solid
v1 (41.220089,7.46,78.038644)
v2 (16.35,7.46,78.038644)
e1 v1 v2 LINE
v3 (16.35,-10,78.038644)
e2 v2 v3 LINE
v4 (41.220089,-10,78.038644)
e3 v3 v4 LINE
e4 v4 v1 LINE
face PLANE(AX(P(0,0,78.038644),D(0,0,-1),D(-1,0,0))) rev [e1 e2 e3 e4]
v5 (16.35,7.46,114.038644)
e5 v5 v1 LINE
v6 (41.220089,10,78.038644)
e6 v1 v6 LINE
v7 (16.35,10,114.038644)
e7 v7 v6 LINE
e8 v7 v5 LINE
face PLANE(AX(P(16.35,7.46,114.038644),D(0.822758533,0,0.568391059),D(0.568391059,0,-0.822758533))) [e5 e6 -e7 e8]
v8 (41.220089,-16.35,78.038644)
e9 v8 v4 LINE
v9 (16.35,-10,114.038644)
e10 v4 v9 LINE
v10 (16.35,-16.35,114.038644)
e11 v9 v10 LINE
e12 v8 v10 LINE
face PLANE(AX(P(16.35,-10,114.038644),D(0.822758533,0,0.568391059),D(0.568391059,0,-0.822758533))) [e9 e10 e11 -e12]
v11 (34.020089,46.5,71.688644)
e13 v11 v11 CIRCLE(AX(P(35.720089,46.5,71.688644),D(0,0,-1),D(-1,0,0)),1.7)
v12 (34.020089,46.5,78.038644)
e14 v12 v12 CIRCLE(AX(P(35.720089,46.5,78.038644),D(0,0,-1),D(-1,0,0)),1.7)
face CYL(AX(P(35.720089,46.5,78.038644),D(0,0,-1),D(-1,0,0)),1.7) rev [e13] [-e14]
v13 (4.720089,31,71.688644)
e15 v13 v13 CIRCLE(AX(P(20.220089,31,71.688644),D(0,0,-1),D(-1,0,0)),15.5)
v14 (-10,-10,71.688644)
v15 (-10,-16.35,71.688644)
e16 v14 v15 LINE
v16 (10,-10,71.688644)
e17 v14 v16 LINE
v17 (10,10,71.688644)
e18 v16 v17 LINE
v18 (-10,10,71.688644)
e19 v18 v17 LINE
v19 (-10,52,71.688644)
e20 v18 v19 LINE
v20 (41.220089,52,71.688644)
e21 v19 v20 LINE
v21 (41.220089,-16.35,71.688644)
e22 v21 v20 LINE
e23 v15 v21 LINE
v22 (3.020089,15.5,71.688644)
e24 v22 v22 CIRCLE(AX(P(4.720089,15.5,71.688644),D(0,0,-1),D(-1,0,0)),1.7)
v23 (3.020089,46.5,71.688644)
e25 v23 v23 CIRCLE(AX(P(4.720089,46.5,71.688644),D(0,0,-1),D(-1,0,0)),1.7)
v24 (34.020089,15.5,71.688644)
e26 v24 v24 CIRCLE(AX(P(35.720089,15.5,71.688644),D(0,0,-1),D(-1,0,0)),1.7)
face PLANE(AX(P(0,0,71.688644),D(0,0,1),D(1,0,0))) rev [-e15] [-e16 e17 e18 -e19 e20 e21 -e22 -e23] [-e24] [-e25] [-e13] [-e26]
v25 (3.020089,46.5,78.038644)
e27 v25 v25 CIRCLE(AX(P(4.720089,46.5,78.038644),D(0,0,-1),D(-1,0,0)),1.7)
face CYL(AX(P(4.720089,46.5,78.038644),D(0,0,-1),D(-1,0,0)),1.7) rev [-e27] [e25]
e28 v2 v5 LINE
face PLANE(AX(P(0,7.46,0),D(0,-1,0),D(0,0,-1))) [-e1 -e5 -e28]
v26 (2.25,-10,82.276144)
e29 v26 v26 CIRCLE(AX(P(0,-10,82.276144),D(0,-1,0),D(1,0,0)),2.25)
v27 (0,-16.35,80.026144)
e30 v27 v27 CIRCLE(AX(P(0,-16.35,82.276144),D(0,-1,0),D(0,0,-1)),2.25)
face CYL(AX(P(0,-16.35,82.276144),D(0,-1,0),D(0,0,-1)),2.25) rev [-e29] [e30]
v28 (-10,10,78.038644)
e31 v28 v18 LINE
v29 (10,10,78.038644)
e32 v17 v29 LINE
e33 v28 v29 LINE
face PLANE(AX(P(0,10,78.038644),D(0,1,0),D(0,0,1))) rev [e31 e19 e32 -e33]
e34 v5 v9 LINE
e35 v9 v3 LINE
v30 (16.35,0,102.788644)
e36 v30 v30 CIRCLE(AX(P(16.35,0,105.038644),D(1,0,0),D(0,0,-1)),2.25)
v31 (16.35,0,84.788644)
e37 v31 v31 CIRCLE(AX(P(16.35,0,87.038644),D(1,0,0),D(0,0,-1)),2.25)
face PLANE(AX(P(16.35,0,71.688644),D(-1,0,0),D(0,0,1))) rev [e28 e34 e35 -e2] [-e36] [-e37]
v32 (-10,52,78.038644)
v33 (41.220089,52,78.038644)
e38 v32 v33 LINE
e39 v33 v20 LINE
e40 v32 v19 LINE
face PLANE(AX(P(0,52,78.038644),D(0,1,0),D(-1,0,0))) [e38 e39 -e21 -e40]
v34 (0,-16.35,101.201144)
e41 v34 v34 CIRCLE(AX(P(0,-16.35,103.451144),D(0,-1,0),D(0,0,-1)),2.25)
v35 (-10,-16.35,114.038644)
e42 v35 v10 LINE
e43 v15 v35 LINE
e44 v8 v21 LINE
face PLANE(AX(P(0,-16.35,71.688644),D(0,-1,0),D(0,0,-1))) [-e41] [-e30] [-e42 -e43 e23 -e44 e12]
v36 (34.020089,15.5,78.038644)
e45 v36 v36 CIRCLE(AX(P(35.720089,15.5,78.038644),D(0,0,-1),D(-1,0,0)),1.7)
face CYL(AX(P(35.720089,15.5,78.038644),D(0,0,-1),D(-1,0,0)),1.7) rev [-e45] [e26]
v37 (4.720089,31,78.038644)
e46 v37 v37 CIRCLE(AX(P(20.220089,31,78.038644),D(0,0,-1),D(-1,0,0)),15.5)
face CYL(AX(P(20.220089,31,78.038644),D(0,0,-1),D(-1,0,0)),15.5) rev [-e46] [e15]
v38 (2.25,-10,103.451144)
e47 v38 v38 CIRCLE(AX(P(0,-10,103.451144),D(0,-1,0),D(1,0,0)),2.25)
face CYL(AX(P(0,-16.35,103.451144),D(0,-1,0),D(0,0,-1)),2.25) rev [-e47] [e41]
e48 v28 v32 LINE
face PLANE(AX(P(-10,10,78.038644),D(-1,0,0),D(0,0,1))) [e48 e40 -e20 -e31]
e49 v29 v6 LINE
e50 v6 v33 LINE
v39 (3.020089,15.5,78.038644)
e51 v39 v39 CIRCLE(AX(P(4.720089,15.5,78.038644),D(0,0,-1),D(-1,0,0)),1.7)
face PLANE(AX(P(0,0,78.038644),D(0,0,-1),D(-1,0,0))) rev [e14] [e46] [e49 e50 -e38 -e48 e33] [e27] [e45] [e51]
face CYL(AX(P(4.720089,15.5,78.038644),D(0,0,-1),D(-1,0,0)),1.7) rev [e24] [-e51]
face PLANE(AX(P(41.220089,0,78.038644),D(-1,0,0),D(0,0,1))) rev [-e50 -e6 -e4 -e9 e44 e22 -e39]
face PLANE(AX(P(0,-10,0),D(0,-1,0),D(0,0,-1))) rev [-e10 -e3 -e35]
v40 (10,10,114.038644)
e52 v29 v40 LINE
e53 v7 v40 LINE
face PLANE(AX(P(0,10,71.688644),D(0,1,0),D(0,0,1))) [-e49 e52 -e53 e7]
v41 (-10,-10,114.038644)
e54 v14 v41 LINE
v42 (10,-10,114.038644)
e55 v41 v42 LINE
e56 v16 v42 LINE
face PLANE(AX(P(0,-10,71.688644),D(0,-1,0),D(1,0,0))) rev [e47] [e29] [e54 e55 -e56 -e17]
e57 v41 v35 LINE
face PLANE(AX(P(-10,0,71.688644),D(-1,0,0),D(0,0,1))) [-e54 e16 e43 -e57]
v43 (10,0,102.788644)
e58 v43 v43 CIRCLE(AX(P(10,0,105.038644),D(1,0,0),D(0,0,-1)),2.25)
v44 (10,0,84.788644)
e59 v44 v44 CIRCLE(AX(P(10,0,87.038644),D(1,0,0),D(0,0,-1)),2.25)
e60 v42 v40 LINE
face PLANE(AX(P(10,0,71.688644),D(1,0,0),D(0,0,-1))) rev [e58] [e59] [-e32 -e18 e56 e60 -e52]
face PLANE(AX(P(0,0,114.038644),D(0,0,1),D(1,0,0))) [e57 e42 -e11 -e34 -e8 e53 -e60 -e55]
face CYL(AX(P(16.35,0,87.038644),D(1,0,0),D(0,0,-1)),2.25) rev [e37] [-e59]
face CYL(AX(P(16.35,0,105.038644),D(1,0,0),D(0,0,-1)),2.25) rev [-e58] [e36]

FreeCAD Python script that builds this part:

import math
import FreeCAD as App
import Part
import Sketcher

V = App.Vector

doc = App.newDocument("Part")
body = doc.addObject("PartDesign::Body", "Body")

# Sketch on XY plane
sketch1 = body.newObject("Sketcher::SketchObject", "Sketch")
sketch1.AttachmentSupport = (doc.getObject("XY_Plane"), [""])
sketch1.MapMode = "FlatFace"
sketch1.AttachmentOffset = App.Placement(V(0, 0, 114.038644), App.Rotation())
sketch1.addGeometry([
    Part.LineSegment(V(10, -10, 0), V(-10, -10, 0)),  # 0
    Part.LineSegment(V(-10, -10, 0), V(-10, -16, 0)),  # 1
    Part.LineSegment(V(-10, -16, 0), V(16, -16, 0)),  # 2
    Part.LineSegment(V(16, -16, 0), V(16, 10, 0)),  # 3
    Part.LineSegment(V(16, 10, 0), V(10, 10, 0)),  # 4
    Part.LineSegment(V(10, 10, 0), V(10, -10, 0)),  # 5
], False)
sketch1.addConstraint([
    Sketcher.Constraint("Coincident", 0, 2, 1, 1),
    Sketcher.Constraint("Coincident", 1, 2, 2, 1),
    Sketcher.Constraint("Coincident", 2, 2, 3, 1),
    Sketcher.Constraint("Coincident", 3, 2, 4, 1),
    Sketcher.Constraint("Coincident", 4, 2, 5, 1),
    Sketcher.Constraint("Coincident", 5, 2, 0, 1),
    Sketcher.Constraint("Horizontal", 0),
    Sketcher.Constraint("Vertical", 1),
    Sketcher.Constraint("Horizontal", 2),
    Sketcher.Constraint("Vertical", 3),
    Sketcher.Constraint("Horizontal", 4),
    Sketcher.Constraint("Vertical", 5),
    Sketcher.Constraint("Symmetric", 0, 2, 4, 2, -1, 1),
    Sketcher.Constraint("Equal", 4, 1),
    Sketcher.Constraint("Equal", 2, 3),
    Sketcher.Constraint("DistanceX", 0, 2, 0, 1, 20.0),
    Sketcher.Constraint("DistanceX", 2, 1, 2, 2, 26.35),
])
pad1 = body.newObject("PartDesign::Pad", "Pad")
pad1.Profile = sketch1
pad1.Length = 42.35
pad1.Reversed = True

# Sketch on XY plane
sketch2 = body.newObject("Sketcher::SketchObject", "Sketch001")
sketch2.AttachmentSupport = (doc.getObject("XY_Plane"), [""])
sketch2.MapMode = "FlatFace"
sketch2.AttachmentOffset = App.Placement(V(0, 0, 71.688644), App.Rotation())
sketch2.addGeometry([
    Part.LineSegment(V(41.2, 52, 0), V(41.2, -16.4, 0)),  # 0
    Part.LineSegment(V(41.2, -16.4, 0), V(16.4, -16.4, 0)),  # 1
    Part.LineSegment(V(16.4, -16.4, 0), V(16.4, 10, 0)),  # 2
    Part.LineSegment(V(16.4, 10, 0), V(-10, 10, 0)),  # 3
    Part.LineSegment(V(-10, 10, 0), V(-10, 52, 0)),  # 4
    Part.LineSegment(V(-10, 52, 0), V(41.2, 52, 0)),  # 5
    Part.ArcOfCircle(Part.Circle(V(20.2, 31, 0), V(0, 0, 1), 15.5), math.radians(-104), math.radians(180)),  # 6
    Part.ArcOfCircle(Part.Circle(V(20.2, 31, 0), V(0, 0, 1), 15.5), math.radians(180), math.radians(251)),  # 7
    Part.ArcOfCircle(Part.Circle(V(20.2, 31, 0), V(0, 0, 1), 15.5), math.radians(-109.06), math.radians(-104.46)),  # 8
    Part.ArcOfCircle(Part.Circle(V(4.7, 15.5, 0), V(0, 0, 1), 1.7), math.radians(30), math.radians(150)),  # 9
    Part.ArcOfCircle(Part.Circle(V(4.7, 15.5, 0), V(0, 0, 1), 1.7), math.radians(150), math.radians(180)),  # 10
    Part.ArcOfCircle(Part.Circle(V(4.7, 15.5, 0), V(0, 0, 1), 1.7), math.radians(180), math.radians(390)),  # 11
    Part.Circle(V(35.7, 15.5, 0), V(0, 0, 1), 1.7),  # 12
    Part.Circle(V(35.7, 46.5, 0), V(0, 0, 1), 1.7),  # 13
    Part.Circle(V(4.7, 46.5, 0), V(0, 0, 1), 1.7),  # 14
], False)
sketch2.addConstraint([
    Sketcher.Constraint("Coincident", 0, 2, 1, 1),
    Sketcher.Constraint("Coincident", 1, 2, 2, 1),
    Sketcher.Constraint("Coincident", 2, 2, 3, 1),
    Sketcher.Constraint("Coincident", 3, 2, 4, 1),
    Sketcher.Constraint("Coincident", 4, 2, 5, 1),
    Sketcher.Constraint("Coincident", 5, 2, 0, 1),
    Sketcher.Constraint("Tangent", 6, 2, 7, 1),
    Sketcher.Constraint("Tangent", 7, 2, 8, 1),
    Sketcher.Constraint("Tangent", 8, 2, 6, 1),
    Sketcher.Constraint("Tangent", 9, 2, 10, 1),
    Sketcher.Constraint("Tangent", 10, 2, 11, 1),
    Sketcher.Constraint("Tangent", 11, 2, 9, 1),
    Sketcher.Constraint("Vertical", 0),
    Sketcher.Constraint("Horizontal", 1),
    Sketcher.Constraint("Vertical", 2),
    Sketcher.Constraint("Horizontal", 3),
    Sketcher.Constraint("Vertical", 4),
    Sketcher.Constraint("Horizontal", 5),
    Sketcher.Constraint("Equal", 11, 12),
    Sketcher.Constraint("Equal", 12, 13),
    Sketcher.Constraint("Equal", 13, 14),
    Sketcher.Constraint("Horizontal", 11, 3, 12, 3),
    Sketcher.Constraint("Horizontal", 13, 3, 14, 3),
    Sketcher.Constraint("Horizontal", 8, 3, 6, 2),
    Sketcher.Constraint("Horizontal", 7, 2, 9, 2),
    Sketcher.Constraint("Horizontal", 12, 3, 10, 2),
    Sketcher.Constraint("Horizontal", 9, 2, 11, 2),
    Sketcher.Constraint("Vertical", 12, 3, 13, 3),
    Sketcher.Constraint("Vertical", 11, 3, 14, 3),
    Sketcher.Constraint("Vertical", 14, 3, 6, 2),
    Sketcher.Constraint("Vertical", 2, 2, 8, 2),
    Sketcher.Constraint("Equal", 3, 2),
    Sketcher.Constraint("Diameter", 12, 3.4),
    Sketcher.Constraint("Radius", 6, 15.5),
    Sketcher.Constraint("DistanceY", 4, 1, 4, 2, 42.0),
    Sketcher.Constraint("DistanceY", -1, 1, 6, 3, 31.0),
    Sketcher.Constraint("DistanceY", -1, 1, 2, 2, 10.0),
    Sketcher.Constraint("DistanceX", 3, 2, -1, 1, 10.0),
    Sketcher.Constraint("DistanceX", 9, 3, 12, 3, 31.0),
    Sketcher.Constraint("DistanceY", 12, 3, 13, 3, 31.0),
    Sketcher.Constraint("DistanceX", 6, 3, 0, 2, 21.0),
    Sketcher.Constraint("DistanceX", 3, 2, 3, 1, 26.35),
    Sketcher.Constraint("DistanceY", -1, 1, 9, 3, 15.5),
    Sketcher.Constraint("DistanceY", -1, 1, 7, 2, 16.35),
    Sketcher.Constraint("DistanceX", 1, 2, 1, 1, 24.870089),
])
pad2 = body.newObject("PartDesign::Pad", "Pad001")
pad2.Profile = sketch2
pad2.Length = 6.35

# Sketch on XZ plane
sketch3 = body.newObject("Sketcher::SketchObject", "Sketch002")
sketch3.AttachmentSupport = (doc.getObject("XZ_Plane"), [""])
sketch3.MapMode = "FlatFace"
sketch3.AttachmentOffset = App.Placement(V(0, 0, 16.35), App.Rotation())
sketch3.addGeometry([
    Part.LineSegment(V(41, 78, 0), V(16, 114, 0)),
    Part.LineSegment(V(16, 114, 0), V(16, 78, 0)),
    Part.LineSegment(V(16, 78, 0), V(41, 78, 0)),
], False)
sketch3.addConstraint([
    Sketcher.Constraint("Coincident", 0, 2, 1, 1),
    Sketcher.Constraint("Coincident", 1, 2, 2, 1),
    Sketcher.Constraint("Coincident", 2, 2, 0, 1),
    Sketcher.Constraint("Vertical", 1),
    Sketcher.Constraint("Horizontal", 2),
    Sketcher.Constraint("DistanceY", 1, 2, 1, 1, 36.0),
    Sketcher.Constraint("DistanceX", -1, 1, 0, 2, 16.35),
    Sketcher.Constraint("DistanceX", 2, 1, 2, 2, 24.870089),
    Sketcher.Constraint("DistanceY", -1, 1, 0, 2, 114.038644),
])
pad3 = body.newObject("PartDesign::Pad", "Pad002")
pad3.Profile = sketch3
pad3.Length = 6.35
pad3.Reversed = True

# Sketch on YZ plane
sketch4 = body.newObject("Sketcher::SketchObject", "Sketch003")
sketch4.AttachmentSupport = (doc.getObject("YZ_Plane"), [""])
sketch4.MapMode = "FlatFace"
sketch4.AttachmentOffset = App.Placement(V(0, 0, 16.35), App.Rotation())
sketch4.addGeometry([
    Part.Circle(V(0, 105, 0), V(0, 0, 1), 2.2),
    Part.Circle(V(0, 87, 0), V(0, 0, 1), 2.2),
], False)
sketch4.addConstraint([
    Sketcher.Constraint("Equal", 0, 1),
    Sketcher.Constraint("PointOnObject", 0, 3, -2),
    Sketcher.Constraint("PointOnObject", 1, 3, -2),
    Sketcher.Constraint("Diameter", 0, 4.5),
    Sketcher.Constraint("DistanceY", 1, 3, 0, 3, 18.0),
    Sketcher.Constraint("DistanceY", -1, 1, 0, 3, 105.038644),
])
doc.recompute()
hole = body.newObject("PartDesign::Hole", "Hole")
hole.Profile = sketch4
hole.ThreadType = "None"
hole.Diameter = 4.5
hole.DepthType = "ThroughAll"

# Sketch on XZ plane
sketch5 = body.newObject("Sketcher::SketchObject", "Sketch004")
sketch5.AttachmentSupport = (doc.getObject("XZ_Plane"), [""])
sketch5.MapMode = "FlatFace"
sketch5.AttachmentOffset = App.Placement(V(0, 0, 16.35), App.Rotation())
sketch5.addGeometry([
    Part.Circle(V(0, 82.3, 0), V(0, 0, 1), 2.2),
    Part.Circle(V(0, 103.5, 0), V(0, 0, 1), 2.2),
], False)
sketch5.addConstraint([
    Sketcher.Constraint("Equal", 0, 1),
    Sketcher.Constraint("PointOnObject", 0, 3, -2),
    Sketcher.Constraint("PointOnObject", 1, 3, -2),
    Sketcher.Constraint("Diameter", 0, 4.5),
    Sketcher.Constraint("DistanceY", 0, 3, 1, 3, 21.175),
    Sketcher.Constraint("DistanceY", -1, 1, 0, 3, 82.276144),
])
doc.recompute()
hole2 = body.newObject("PartDesign::Hole", "Hole001")
hole2.Profile = sketch5
hole2.ThreadType = "None"
hole2.Diameter = 4.5
hole2.DepthType = "ThroughAll"

# Sketch on XZ plane
sketch6 = body.newObject("Sketcher::SketchObject", "Sketch005")
sketch6.AttachmentSupport = (doc.getObject("XZ_Plane"), [""])
sketch6.MapMode = "FlatFace"
sketch6.AttachmentOffset = App.Placement(V(0, 0, -10), App.Rotation())
sketch6.addGeometry([
    Part.LineSegment(V(16, 114, 0), V(41, 78, 0)),
    Part.LineSegment(V(41, 78, 0), V(16, 78, 0)),
    Part.LineSegment(V(16, 78, 0), V(16, 114, 0)),
], False)
sketch6.addConstraint([
    Sketcher.Constraint("Coincident", 0, 2, 1, 1),
    Sketcher.Constraint("Coincident", 1, 2, 2, 1),
    Sketcher.Constraint("Coincident", 2, 2, 0, 1),
    Sketcher.Constraint("Horizontal", 1),
    Sketcher.Constraint("Vertical", 2),
    Sketcher.Constraint("DistanceY", 2, 1, 2, 2, 36.0),
    Sketcher.Constraint("DistanceX", -1, 1, 1, 2, 16.35),
    Sketcher.Constraint("DistanceX", 1, 2, 1, 1, 24.870089),
    Sketcher.Constraint("DistanceY", -1, 1, 0, 2, 78.038644),
])
pad4 = body.newObject("PartDesign::Pad", "Pad003")
pad4.Profile = sketch6
pad4.Length = 2.54

doc.recompute()
